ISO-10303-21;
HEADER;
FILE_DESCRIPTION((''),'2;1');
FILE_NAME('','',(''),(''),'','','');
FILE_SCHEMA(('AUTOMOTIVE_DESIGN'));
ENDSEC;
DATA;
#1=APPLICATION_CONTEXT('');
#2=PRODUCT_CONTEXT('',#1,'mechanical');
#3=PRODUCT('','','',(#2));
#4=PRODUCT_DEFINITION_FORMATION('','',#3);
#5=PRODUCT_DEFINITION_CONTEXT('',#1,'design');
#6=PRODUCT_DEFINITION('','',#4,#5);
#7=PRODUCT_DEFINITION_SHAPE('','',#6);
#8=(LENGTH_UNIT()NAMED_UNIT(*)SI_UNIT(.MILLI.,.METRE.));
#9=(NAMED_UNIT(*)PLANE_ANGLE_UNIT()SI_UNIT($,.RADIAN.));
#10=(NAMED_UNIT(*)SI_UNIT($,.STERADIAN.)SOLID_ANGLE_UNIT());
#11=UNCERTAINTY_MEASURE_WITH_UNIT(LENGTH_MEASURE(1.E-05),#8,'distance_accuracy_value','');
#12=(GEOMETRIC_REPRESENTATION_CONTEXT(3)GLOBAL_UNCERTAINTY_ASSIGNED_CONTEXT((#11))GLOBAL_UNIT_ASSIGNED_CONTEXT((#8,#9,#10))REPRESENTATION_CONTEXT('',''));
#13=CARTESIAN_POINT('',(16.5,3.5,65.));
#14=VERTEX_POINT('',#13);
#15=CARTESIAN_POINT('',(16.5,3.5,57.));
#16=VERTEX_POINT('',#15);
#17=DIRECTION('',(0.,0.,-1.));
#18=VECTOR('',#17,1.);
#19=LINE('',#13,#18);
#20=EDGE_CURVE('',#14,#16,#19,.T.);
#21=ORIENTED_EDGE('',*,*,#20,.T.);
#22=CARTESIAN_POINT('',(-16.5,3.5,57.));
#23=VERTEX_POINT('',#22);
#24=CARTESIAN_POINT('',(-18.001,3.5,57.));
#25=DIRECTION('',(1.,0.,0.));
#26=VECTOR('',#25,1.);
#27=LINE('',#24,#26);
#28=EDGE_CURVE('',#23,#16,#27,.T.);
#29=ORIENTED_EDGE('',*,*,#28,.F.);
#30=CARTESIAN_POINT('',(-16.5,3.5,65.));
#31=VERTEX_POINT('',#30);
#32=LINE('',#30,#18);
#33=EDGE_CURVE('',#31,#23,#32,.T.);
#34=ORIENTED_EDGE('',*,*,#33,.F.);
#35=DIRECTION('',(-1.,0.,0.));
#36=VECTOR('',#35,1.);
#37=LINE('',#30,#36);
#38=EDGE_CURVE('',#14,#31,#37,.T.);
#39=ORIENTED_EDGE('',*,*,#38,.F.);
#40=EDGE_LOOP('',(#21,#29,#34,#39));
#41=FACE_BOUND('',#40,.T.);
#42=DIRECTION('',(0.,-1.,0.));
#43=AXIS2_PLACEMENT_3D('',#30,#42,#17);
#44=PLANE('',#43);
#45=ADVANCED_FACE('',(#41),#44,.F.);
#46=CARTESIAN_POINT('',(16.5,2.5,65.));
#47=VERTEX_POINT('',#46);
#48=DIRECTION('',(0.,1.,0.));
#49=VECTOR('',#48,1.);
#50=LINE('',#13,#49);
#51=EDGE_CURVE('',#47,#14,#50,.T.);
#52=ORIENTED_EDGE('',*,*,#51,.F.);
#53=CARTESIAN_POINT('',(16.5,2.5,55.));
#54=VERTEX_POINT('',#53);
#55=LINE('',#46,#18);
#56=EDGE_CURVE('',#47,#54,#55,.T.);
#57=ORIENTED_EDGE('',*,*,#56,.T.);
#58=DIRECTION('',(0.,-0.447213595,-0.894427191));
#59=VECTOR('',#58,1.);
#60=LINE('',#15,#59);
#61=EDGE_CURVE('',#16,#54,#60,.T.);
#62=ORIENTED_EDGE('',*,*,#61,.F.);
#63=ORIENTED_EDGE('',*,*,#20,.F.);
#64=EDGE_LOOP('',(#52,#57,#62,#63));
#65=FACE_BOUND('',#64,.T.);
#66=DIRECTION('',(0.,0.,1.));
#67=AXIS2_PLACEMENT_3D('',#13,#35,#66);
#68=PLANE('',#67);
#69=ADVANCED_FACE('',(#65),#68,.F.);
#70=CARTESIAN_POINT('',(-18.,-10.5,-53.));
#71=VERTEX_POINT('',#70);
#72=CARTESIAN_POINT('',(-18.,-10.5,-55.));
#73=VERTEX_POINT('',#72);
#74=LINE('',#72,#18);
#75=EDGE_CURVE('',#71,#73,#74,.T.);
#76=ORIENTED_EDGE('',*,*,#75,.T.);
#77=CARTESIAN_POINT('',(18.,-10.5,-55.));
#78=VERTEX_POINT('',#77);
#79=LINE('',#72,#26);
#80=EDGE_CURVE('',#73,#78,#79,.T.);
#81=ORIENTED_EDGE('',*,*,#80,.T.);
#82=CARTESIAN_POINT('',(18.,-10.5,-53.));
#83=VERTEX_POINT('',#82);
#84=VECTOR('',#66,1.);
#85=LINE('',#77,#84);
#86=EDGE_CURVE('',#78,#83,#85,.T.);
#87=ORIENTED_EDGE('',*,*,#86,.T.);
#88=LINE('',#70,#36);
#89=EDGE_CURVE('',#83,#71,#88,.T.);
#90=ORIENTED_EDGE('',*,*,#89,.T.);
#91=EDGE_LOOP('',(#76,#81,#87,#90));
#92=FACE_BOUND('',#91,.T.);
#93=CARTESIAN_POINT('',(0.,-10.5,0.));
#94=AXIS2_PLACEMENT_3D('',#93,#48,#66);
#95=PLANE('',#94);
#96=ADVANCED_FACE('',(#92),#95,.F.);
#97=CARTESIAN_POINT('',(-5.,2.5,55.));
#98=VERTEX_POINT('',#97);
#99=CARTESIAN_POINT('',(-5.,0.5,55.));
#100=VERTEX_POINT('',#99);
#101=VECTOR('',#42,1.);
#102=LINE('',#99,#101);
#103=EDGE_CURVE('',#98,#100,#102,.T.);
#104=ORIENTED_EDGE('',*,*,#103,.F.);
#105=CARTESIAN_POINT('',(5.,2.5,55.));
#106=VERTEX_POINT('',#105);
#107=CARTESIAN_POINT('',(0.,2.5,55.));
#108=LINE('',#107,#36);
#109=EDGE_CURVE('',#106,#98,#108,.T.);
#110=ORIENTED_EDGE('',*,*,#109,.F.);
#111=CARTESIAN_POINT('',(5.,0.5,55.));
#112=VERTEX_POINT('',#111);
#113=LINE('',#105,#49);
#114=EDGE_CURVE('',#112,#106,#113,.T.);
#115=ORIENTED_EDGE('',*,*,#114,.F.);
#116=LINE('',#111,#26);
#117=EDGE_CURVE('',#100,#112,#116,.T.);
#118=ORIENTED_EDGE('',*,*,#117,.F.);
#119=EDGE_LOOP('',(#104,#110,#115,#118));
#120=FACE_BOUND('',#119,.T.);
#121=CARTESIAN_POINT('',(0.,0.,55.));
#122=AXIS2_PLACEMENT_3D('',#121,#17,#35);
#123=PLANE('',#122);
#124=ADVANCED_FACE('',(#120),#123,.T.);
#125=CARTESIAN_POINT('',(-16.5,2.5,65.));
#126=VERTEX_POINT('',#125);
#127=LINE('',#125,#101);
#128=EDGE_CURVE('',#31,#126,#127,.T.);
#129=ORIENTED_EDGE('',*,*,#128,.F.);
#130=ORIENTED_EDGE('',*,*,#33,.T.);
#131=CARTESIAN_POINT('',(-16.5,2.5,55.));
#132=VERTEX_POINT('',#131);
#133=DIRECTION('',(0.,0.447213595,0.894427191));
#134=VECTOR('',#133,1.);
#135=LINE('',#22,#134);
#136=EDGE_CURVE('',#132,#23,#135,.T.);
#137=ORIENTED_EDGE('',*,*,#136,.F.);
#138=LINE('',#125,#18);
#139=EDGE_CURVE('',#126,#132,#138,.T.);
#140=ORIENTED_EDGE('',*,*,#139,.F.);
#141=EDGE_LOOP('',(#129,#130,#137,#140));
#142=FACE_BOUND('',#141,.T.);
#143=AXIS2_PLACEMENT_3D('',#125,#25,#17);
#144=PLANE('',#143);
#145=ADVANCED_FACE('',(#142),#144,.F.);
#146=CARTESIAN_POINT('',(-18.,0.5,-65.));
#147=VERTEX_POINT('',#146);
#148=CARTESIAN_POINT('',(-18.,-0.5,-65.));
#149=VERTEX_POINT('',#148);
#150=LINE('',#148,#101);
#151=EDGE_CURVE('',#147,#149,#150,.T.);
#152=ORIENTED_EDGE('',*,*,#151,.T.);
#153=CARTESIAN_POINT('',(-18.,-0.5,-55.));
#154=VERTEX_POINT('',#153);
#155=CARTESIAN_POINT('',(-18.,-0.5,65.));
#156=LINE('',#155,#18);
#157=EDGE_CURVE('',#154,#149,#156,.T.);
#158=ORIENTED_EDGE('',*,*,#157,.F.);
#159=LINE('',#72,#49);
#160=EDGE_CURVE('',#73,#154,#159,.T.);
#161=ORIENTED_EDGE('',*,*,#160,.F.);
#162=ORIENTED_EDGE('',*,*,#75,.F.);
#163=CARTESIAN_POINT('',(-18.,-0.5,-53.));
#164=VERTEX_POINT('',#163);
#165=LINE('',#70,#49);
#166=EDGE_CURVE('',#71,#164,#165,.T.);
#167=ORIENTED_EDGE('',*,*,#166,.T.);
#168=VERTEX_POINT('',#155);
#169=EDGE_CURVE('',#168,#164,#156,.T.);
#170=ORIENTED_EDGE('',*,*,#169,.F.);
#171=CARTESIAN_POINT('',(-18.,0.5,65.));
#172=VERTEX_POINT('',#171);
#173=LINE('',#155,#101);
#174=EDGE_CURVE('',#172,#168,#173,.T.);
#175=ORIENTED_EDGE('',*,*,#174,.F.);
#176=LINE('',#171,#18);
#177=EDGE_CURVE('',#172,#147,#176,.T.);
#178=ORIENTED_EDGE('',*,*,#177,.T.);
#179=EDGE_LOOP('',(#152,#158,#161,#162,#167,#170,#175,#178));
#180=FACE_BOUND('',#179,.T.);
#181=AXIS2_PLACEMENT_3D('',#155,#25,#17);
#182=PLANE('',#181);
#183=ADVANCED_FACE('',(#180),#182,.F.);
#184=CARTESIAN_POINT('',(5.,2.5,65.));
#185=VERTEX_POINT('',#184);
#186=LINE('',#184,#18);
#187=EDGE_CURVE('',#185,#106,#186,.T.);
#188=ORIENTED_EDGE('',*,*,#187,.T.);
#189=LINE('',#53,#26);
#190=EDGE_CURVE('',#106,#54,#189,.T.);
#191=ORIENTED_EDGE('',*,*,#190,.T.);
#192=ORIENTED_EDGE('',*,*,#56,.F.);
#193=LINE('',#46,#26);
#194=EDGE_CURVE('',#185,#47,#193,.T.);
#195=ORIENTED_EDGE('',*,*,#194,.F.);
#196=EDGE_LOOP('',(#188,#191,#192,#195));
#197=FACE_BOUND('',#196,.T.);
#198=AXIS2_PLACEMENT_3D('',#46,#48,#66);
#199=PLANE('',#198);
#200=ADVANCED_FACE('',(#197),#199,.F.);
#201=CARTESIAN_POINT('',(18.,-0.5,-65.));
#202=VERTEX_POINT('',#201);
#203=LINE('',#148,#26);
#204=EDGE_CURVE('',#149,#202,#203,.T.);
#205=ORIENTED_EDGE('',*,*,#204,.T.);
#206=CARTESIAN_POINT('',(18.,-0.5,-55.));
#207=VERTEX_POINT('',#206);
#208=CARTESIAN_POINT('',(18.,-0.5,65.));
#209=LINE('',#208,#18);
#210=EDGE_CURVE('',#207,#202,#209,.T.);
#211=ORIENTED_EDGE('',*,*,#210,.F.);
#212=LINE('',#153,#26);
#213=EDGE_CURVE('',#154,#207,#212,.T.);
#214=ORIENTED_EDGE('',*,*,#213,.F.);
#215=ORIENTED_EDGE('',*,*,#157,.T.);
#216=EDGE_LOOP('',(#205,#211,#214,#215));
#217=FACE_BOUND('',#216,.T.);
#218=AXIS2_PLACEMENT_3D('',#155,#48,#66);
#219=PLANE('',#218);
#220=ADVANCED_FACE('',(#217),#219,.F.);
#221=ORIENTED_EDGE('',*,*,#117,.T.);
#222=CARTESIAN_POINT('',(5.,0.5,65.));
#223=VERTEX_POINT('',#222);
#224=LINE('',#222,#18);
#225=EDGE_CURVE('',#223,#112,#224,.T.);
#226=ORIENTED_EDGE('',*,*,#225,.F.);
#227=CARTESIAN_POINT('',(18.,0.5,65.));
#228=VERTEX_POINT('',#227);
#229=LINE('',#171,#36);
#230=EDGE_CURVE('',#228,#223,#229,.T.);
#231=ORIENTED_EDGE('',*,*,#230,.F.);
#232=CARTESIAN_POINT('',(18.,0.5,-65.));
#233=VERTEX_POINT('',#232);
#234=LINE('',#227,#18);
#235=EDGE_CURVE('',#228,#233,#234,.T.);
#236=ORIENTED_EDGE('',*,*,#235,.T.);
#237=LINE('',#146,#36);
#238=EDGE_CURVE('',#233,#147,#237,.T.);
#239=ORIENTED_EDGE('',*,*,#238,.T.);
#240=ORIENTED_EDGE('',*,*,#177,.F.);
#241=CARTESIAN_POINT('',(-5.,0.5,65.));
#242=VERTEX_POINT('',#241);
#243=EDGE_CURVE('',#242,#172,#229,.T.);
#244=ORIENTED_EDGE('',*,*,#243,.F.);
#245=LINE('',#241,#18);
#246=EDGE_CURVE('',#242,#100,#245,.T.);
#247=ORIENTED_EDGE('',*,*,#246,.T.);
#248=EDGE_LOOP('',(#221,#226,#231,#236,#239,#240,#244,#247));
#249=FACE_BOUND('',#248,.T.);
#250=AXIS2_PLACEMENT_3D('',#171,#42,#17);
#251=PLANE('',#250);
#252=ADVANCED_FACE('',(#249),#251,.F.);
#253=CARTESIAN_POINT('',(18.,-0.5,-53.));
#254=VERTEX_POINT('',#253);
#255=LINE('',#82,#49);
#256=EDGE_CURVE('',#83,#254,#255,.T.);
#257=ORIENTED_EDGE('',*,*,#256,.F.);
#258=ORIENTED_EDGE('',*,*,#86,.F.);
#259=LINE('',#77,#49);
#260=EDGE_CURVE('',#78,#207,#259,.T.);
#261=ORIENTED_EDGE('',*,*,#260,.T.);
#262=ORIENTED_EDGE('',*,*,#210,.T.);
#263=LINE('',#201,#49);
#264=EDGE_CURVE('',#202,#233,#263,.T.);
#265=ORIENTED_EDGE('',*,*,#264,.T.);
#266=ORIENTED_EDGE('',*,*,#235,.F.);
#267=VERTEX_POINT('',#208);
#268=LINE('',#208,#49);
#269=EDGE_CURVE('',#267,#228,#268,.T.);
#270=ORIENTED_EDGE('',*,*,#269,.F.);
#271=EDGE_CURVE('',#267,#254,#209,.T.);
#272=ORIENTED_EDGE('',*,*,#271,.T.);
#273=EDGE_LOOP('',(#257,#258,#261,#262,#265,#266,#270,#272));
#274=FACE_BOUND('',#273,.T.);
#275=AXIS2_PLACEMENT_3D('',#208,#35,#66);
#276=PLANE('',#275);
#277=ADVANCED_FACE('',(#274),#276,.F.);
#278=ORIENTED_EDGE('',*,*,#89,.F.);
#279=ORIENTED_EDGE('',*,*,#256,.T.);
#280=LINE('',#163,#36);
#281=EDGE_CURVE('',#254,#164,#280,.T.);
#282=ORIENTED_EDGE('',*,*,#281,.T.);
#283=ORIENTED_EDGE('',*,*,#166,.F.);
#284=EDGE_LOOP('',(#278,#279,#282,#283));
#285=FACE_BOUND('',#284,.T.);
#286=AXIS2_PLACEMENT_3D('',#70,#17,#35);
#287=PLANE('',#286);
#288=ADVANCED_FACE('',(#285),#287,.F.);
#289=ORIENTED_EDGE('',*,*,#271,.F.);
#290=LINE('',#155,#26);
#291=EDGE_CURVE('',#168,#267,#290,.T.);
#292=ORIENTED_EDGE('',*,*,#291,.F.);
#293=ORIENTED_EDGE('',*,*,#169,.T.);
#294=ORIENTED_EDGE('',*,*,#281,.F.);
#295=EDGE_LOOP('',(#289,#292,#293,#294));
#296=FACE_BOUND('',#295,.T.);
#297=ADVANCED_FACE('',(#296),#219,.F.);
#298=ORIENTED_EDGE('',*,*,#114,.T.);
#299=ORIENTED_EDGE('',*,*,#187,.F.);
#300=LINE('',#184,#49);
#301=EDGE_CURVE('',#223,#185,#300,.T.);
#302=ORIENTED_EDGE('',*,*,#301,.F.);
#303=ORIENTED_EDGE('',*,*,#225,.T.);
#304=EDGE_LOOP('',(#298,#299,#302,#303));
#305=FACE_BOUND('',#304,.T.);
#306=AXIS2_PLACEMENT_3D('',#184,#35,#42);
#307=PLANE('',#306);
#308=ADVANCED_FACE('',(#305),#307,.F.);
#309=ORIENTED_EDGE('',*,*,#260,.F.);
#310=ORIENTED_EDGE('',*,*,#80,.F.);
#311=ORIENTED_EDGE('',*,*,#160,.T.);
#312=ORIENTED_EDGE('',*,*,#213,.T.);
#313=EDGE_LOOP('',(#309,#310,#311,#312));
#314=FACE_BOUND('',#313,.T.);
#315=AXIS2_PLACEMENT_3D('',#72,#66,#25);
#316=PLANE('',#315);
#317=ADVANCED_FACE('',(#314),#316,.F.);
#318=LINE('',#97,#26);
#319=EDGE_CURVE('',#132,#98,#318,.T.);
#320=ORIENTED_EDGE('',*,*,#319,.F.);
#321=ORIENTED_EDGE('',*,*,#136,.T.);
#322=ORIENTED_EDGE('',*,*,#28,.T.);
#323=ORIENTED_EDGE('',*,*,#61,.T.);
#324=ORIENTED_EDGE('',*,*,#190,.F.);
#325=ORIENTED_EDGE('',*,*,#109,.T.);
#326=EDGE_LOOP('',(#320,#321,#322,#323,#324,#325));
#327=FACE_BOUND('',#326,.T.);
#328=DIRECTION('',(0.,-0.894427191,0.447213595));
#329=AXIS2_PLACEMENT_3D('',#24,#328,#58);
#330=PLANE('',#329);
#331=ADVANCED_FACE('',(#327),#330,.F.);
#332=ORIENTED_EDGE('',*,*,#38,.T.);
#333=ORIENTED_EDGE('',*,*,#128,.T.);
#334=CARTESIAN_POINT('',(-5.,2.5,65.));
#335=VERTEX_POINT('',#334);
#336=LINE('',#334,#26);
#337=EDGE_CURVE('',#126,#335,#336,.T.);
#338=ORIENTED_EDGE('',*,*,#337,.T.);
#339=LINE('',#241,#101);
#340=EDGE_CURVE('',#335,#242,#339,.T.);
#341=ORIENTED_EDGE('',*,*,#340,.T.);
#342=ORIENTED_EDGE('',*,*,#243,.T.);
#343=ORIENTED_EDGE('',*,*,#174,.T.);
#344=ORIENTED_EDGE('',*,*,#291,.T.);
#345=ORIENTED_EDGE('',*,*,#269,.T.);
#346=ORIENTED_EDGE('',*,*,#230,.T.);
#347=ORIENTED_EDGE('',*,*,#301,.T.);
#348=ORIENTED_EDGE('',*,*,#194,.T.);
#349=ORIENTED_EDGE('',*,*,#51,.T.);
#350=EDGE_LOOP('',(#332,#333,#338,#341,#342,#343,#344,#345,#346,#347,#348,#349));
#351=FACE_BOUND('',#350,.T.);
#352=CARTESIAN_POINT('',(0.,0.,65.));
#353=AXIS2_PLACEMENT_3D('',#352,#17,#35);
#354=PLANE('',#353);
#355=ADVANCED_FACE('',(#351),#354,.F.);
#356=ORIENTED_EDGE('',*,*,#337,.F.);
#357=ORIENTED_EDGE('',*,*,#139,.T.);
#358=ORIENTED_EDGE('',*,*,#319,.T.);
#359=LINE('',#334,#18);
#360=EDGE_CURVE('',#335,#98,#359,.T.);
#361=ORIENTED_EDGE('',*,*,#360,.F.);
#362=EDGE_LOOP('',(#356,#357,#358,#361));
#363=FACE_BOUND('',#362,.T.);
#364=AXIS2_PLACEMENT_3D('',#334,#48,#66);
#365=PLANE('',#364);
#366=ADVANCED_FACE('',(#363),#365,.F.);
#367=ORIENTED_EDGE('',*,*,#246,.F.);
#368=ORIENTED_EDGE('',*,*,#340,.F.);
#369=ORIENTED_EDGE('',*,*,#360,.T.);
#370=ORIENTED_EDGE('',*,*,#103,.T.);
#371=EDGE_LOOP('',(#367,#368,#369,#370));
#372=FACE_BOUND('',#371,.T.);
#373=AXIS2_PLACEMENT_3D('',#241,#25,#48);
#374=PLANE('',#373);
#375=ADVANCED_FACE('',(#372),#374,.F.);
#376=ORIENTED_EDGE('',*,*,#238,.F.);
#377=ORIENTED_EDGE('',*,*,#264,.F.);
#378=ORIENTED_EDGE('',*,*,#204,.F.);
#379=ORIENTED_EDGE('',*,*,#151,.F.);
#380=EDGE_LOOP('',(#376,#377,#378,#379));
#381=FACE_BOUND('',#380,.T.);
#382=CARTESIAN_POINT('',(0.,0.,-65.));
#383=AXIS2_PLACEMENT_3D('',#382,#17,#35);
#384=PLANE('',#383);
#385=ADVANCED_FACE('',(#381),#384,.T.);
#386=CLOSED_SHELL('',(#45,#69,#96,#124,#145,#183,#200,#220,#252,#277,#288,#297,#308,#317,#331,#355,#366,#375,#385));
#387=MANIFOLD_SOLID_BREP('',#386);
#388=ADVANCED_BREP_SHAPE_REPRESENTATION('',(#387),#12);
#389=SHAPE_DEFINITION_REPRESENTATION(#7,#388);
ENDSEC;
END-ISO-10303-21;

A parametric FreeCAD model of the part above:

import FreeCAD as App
import Part
import Sketcher
from FreeCAD import Vector

doc = App.newDocument("Part")
params = doc.addObject("Spreadsheet::Sheet", "Params")
for row, (alias, value) in enumerate([
    ("sketch1_width", "36 mm"),
    ("sketch1_height", "1 mm"),
    ("pad1_length", "130 mm"),
    ("sketch2_width", "10 mm"),
    ("sketch2_width2", "33 mm"),
    ("sketch2_height", "2 mm"),
    ("sketch2_height2", "1 mm"),
    ("pad2_length", "10 mm"),
    ("sketch3_width", "36 mm"),
    ("sketch3_height", "2 mm"),
    ("pad3_length", "10 mm"),
    ("sketch4_width", "1 mm"),
    ("sketch4_height", "2 mm"),
], start=1):
    params.set(f"A{row}", alias)
    params.set(f"B{row}", "=" + value)
    params.setAlias(f"B{row}", alias)

body = doc.addObject("PartDesign::Body", "Body")

# Sketch on XY plane
sketch1 = body.newObject("Sketcher::SketchObject", "Sketch")
sketch1.AttachmentSupport = (doc.getObject("XY_Plane"), [""])
sketch1.MapMode = "FlatFace"
sketch1.addGeometry([
    Part.LineSegment(Vector(-18, 0.5, 0), Vector(-18, -0.5, 0)),
    Part.LineSegment(Vector(-18, -0.5, 0), Vector(18, -0.5, 0)),
    Part.LineSegment(Vector(18, -0.5, 0), Vector(18, 0.5, 0)),
    Part.LineSegment(Vector(18, 0.5, 0), Vector(-18, 0.5, 0)),
], False)
sketch1.addConstraint([
    Sketcher.Constraint("Coincident", 0, 2, 1, 1),
    Sketcher.Constraint("Coincident", 1, 2, 2, 1),
    Sketcher.Constraint("Coincident", 2, 2, 3, 1),
    Sketcher.Constraint("Coincident", 3, 2, 0, 1),
    Sketcher.Constraint("Vertical", 0),
    Sketcher.Constraint("Horizontal", 1),
    Sketcher.Constraint("Vertical", 2),
    Sketcher.Constraint("Horizontal", 3),
    Sketcher.Constraint("Symmetric", 0, 2, 2, 2, -1, 1),
    Sketcher.Constraint("DistanceX", 1, 1, 1, 2, 36.0),
    Sketcher.Constraint("DistanceY", 0, 2, 0, 1, 1.0),
])
sketch1.setExpression("Constraints[9]", "Params.sketch1_width")
sketch1.setExpression("Constraints[10]", "Params.sketch1_height")
pad1 = body.newObject("PartDesign::Pad", "Pad")
pad1.Profile = sketch1
pad1.setExpression("Length", "Params.pad1_length")
pad1.Midplane = True

# Sketch on XY plane
sketch2 = body.newObject("Sketcher::SketchObject", "Sketch001")
sketch2.AttachmentSupport = (doc.getObject("XY_Plane"), [""])
sketch2.MapMode = "FlatFace"
sketch2.AttachmentOffset = App.Placement(Vector(0, 0, 60), App.Rotation())
sketch2.addGeometry([
    Part.LineSegment(Vector(-5, 2.5, 0), Vector(-5, 0.5, 0)),  # 0
    Part.LineSegment(Vector(-5, 0.5, 0), Vector(5, 0.5, 0)),  # 1
    Part.LineSegment(Vector(5, 0.5, 0), Vector(5, 2.5, 0)),  # 2
    Part.LineSegment(Vector(5, 2.5, 0), Vector(16.5, 2.5, 0)),  # 3
    Part.LineSegment(Vector(16.5, 2.5, 0), Vector(16.5, 3.5, 0)),  # 4
    Part.LineSegment(Vector(16.5, 3.5, 0), Vector(-16.5, 3.5, 0)),  # 5
    Part.LineSegment(Vector(-16.5, 3.5, 0), Vector(-16.5, 2.5, 0)),  # 6
    Part.LineSegment(Vector(-16.5, 2.5, 0), Vector(-5, 2.5, 0)),  # 7
], False)
sketch2.addConstraint([
    Sketcher.Constraint("Coincident", 0, 2, 1, 1),
    Sketcher.Constraint("Coincident", 1, 2, 2, 1),
    Sketcher.Constraint("Coincident", 2, 2, 3, 1),
    Sketcher.Constraint("Coincident", 3, 2, 4, 1),
    Sketcher.Constraint("Coincident", 4, 2, 5, 1),
    Sketcher.Constraint("Coincident", 5, 2, 6, 1),
    Sketcher.Constraint("Coincident", 6, 2, 7, 1),
    Sketcher.Constraint("Coincident", 7, 2, 0, 1),
    Sketcher.Constraint("Vertical", 0),
    Sketcher.Constraint("Horizontal", 1),
    Sketcher.Constraint("Vertical", 2),
    Sketcher.Constraint("Horizontal", 3),
    Sketcher.Constraint("Vertical", 4),
    Sketcher.Constraint("Horizontal", 5),
    Sketcher.Constraint("Vertical", 6),
    Sketcher.Constraint("Horizontal", 7),
    Sketcher.Constraint("Symmetric", 3, 2, 6, 2, -2),
    Sketcher.Constraint("Equal", 3, 7),
    Sketcher.Constraint("DistanceX", 1, 1, 1, 2, 10.0),
    Sketcher.Constraint("DistanceX", 5, 2, 5, 1, 33.0),
    Sketcher.Constraint("DistanceY", 0, 2, 0, 1, 2.0),
    Sketcher.Constraint("DistanceY", 4, 1, 4, 2, 1.0),
    Sketcher.Constraint("DistanceY", -1, 1, 0, 2, 0.5),
])
sketch2.setExpression("Constraints[18]", "Params.sketch2_width")
sketch2.setExpression("Constraints[19]", "Params.sketch2_width2")
sketch2.setExpression("Constraints[20]", "Params.sketch2_height")
sketch2.setExpression("Constraints[21]", "Params.sketch2_height2")
pad2 = body.newObject("PartDesign::Pad", "Pad001")
pad2.Profile = sketch2
pad2.setExpression("Length", "Params.pad2_length")
pad2.Midplane = True

# Sketch on XZ plane
sketch3 = body.newObject("Sketcher::SketchObject", "Sketch002")
sketch3.AttachmentSupport = (doc.getObject("XZ_Plane"), [""])
sketch3.MapMode = "FlatFace"
sketch3.AttachmentOffset = App.Placement(Vector(0, 0, 0.5), App.Rotation())
sketch3.addGeometry([
    Part.LineSegment(Vector(-18, -53, 0), Vector(-18, -55, 0)),
    Part.LineSegment(Vector(-18, -55, 0), Vector(18, -55, 0)),
    Part.LineSegment(Vector(18, -55, 0), Vector(18, -53, 0)),
    Part.LineSegment(Vector(18, -53, 0), Vector(-18, -53, 0)),
], False)
sketch3.addConstraint([
    Sketcher.Constraint("Coincident", 0, 2, 1, 1),
    Sketcher.Constraint("Coincident", 1, 2, 2, 1),
    Sketcher.Constraint("Coincident", 2, 2, 3, 1),
    Sketcher.Constraint("Coincident", 3, 2, 0, 1),
    Sketcher.Constraint("Vertical", 0),
    Sketcher.Constraint("Horizontal", 1),
    Sketcher.Constraint("Vertical", 2),
    Sketcher.Constraint("Horizontal", 3),
    Sketcher.Constraint("DistanceX", 1, 1, 1, 2, 36.0),
    Sketcher.Constraint("DistanceY", 0, 2, 0, 1, 2.0),
    Sketcher.Constraint("DistanceX", 0, 2, -1, 1, 18.0),
    Sketcher.Constraint("DistanceY", 0, 2, -1, 1, 55.0),
])
sketch3.setExpression("Constraints[8]", "Params.sketch3_width")
sketch3.setExpression("Constraints[9]", "Params.sketch3_height")
pad3 = body.newObject("PartDesign::Pad", "Pad002")
pad3.Profile = sketch3
pad3.setExpression("Length", "Params.pad3_length")

# Sketch on YZ plane
sketch4 = body.newObject("Sketcher::SketchObject", "Sketch003")
sketch4.AttachmentSupport = (doc.getObject("YZ_Plane"), [""])
sketch4.MapMode = "FlatFace"
sketch4.AttachmentOffset = App.Placement(Vector(0, 0, 16.5), App.Rotation())
sketch4.addGeometry([
    Part.LineSegment(Vector(3.5, 57, 0), Vector(2.5, 55, 0)),
    Part.LineSegment(Vector(2.5, 55, 0), Vector(3.5, 55, 0)),
    Part.LineSegment(Vector(3.5, 55, 0), Vector(3.5, 57, 0)),
], False)
sketch4.addConstraint([
    Sketcher.Constraint("Coincident", 0, 2, 1, 1),
    Sketcher.Constraint("Coincident", 1, 2, 2, 1),
    Sketcher.Constraint("Coincident", 2, 2, 0, 1),
    Sketcher.Constraint("Horizontal", 1),
    Sketcher.Constraint("Vertical", 2),
    Sketcher.Constraint("DistanceX", 1, 1, 1, 2, 1.0),
    Sketcher.Constraint("DistanceY", 2, 1, 2, 2, 2.0),
    Sketcher.Constraint("DistanceY", -1, 1, 0, 2, 55.0),
    Sketcher.Constraint("DistanceX", -1, 1, 0, 2, 2.5),
])
sketch4.setExpression("Constraints[5]", "Params.sketch4_width")
sketch4.setExpression("Constraints[6]", "Params.sketch4_height")
pocket1 = body.newObject("PartDesign::Pocket", "Pocket")
pocket1.Profile = sketch4
pocket1.Type = "UpToFirst"

doc.recompute()
